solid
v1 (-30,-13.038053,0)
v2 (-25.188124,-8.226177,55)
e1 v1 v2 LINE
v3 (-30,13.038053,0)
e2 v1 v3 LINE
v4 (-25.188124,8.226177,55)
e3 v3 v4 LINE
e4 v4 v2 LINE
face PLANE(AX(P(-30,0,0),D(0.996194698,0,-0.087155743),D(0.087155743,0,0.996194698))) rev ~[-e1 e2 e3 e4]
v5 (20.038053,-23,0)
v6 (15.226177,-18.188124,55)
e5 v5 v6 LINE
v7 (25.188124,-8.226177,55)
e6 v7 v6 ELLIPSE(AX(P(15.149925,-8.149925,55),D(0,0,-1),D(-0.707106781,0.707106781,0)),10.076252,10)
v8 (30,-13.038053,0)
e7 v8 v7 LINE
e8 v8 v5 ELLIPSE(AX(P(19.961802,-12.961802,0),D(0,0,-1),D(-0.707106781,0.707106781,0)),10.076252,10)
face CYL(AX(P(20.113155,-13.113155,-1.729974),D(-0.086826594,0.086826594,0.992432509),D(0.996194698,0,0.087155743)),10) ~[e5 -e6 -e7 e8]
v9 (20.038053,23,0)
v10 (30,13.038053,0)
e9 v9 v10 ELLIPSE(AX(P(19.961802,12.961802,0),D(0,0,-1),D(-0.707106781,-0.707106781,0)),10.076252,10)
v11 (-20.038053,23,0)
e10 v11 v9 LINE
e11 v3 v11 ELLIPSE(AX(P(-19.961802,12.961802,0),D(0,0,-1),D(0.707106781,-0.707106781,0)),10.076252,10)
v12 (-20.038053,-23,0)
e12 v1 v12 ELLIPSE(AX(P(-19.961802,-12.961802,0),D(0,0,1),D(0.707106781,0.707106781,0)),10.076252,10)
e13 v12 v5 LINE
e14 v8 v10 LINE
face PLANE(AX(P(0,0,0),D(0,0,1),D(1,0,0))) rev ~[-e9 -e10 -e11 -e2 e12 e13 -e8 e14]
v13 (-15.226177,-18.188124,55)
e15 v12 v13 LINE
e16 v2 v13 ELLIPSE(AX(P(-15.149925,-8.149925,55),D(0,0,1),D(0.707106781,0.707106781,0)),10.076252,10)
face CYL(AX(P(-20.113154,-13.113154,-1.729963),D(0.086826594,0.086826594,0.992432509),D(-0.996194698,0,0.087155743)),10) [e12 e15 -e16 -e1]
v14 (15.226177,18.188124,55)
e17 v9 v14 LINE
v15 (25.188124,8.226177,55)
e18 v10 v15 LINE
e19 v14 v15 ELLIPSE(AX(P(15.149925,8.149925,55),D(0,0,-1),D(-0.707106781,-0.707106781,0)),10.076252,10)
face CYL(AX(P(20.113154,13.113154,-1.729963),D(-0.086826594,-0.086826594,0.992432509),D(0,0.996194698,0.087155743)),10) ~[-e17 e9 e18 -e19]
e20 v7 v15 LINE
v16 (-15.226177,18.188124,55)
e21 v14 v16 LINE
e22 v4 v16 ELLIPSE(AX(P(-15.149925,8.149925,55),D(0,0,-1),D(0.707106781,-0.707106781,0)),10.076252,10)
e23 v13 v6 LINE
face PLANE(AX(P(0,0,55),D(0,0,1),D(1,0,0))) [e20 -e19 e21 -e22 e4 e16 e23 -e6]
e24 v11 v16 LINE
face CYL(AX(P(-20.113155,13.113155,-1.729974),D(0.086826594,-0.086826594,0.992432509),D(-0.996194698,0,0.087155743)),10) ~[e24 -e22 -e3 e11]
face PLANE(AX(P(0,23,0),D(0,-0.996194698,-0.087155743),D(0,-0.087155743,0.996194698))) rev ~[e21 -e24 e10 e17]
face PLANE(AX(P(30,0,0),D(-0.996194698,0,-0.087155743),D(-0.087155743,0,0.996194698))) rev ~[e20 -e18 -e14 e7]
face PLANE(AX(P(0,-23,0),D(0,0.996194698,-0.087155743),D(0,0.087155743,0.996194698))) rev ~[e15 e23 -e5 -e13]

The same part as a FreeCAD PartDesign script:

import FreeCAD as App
import Part
import Sketcher

V = App.Vector
Q = App.Units.Quantity


def edges_at(feature, points):
    """Names of the edges that pass closest to the given points."""
    edges = feature.Shape.Edges
    near = lambda p: min(range(len(edges)), key=lambda i: edges[i].distToShape(Part.Vertex(*p))[0])
    return sorted({f"Edge{near(p) + 1}" for p in points})


def add_polygon(sketch, points):
    """Adds a closed chain of lines whose ends are joined by coincident constraints."""
    first, n = sketch.GeometryCount, len(points)
    for a, b in zip(points, points[1:] + points[:1]):
        sketch.addGeometry(Part.LineSegment(App.Vector(*a, 0), App.Vector(*b, 0)), False)
    for i in range(n):
        sketch.addConstraint(Sketcher.Constraint("Coincident", first + i, 2, first + (i + 1) % n, 1))

doc = App.newDocument("Part")
body = doc.addObject("PartDesign::Body", "Body")

# Sketch on XY plane
sketch1 = doc.addObject("Sketcher::SketchObject", "Sketch")
body.addObject(sketch1)
sketch1.AttachmentSupport = (doc.XY_Plane, [""])
sketch1.MapMode = "FlatFace"
add_polygon(sketch1, [(-30, 23), (-30, -23), (30, -23), (30, 23)])  # lines 0-3
sketch1.addConstraint([
    Sketcher.Constraint("Vertical", 0),
    Sketcher.Constraint("Horizontal", 1),
    Sketcher.Constraint("Vertical", 2),
    Sketcher.Constraint("Horizontal", 3),
    Sketcher.Constraint("Symmetric", 0, 2, 2, 2, -1, 1),
    Sketcher.Constraint("DistanceX", 1, 1, 1, 2, Q("60 mm")),
    Sketcher.Constraint("DistanceY", 0, 2, 0, 1, Q("46 mm")),
])
pad1 = doc.addObject("PartDesign::Pad", "Pad")
body.addObject(pad1)
pad1.Profile = sketch1
pad1.Length = 55
pad1.TaperAngle = -5
doc.recompute()

fillet = doc.addObject("PartDesign::Fillet", "Fillet")
body.addObject(fillet)
fillet.Base = (pad1, edges_at(pad1, [
    (-27.594, -20.594, 27.5),
    (27.594, -20.594, 27.5),
    (-27.594, 20.594, 27.5),
    (27.594, 20.594, 27.5),
]))
fillet.Radius = 10

doc.recompute()
